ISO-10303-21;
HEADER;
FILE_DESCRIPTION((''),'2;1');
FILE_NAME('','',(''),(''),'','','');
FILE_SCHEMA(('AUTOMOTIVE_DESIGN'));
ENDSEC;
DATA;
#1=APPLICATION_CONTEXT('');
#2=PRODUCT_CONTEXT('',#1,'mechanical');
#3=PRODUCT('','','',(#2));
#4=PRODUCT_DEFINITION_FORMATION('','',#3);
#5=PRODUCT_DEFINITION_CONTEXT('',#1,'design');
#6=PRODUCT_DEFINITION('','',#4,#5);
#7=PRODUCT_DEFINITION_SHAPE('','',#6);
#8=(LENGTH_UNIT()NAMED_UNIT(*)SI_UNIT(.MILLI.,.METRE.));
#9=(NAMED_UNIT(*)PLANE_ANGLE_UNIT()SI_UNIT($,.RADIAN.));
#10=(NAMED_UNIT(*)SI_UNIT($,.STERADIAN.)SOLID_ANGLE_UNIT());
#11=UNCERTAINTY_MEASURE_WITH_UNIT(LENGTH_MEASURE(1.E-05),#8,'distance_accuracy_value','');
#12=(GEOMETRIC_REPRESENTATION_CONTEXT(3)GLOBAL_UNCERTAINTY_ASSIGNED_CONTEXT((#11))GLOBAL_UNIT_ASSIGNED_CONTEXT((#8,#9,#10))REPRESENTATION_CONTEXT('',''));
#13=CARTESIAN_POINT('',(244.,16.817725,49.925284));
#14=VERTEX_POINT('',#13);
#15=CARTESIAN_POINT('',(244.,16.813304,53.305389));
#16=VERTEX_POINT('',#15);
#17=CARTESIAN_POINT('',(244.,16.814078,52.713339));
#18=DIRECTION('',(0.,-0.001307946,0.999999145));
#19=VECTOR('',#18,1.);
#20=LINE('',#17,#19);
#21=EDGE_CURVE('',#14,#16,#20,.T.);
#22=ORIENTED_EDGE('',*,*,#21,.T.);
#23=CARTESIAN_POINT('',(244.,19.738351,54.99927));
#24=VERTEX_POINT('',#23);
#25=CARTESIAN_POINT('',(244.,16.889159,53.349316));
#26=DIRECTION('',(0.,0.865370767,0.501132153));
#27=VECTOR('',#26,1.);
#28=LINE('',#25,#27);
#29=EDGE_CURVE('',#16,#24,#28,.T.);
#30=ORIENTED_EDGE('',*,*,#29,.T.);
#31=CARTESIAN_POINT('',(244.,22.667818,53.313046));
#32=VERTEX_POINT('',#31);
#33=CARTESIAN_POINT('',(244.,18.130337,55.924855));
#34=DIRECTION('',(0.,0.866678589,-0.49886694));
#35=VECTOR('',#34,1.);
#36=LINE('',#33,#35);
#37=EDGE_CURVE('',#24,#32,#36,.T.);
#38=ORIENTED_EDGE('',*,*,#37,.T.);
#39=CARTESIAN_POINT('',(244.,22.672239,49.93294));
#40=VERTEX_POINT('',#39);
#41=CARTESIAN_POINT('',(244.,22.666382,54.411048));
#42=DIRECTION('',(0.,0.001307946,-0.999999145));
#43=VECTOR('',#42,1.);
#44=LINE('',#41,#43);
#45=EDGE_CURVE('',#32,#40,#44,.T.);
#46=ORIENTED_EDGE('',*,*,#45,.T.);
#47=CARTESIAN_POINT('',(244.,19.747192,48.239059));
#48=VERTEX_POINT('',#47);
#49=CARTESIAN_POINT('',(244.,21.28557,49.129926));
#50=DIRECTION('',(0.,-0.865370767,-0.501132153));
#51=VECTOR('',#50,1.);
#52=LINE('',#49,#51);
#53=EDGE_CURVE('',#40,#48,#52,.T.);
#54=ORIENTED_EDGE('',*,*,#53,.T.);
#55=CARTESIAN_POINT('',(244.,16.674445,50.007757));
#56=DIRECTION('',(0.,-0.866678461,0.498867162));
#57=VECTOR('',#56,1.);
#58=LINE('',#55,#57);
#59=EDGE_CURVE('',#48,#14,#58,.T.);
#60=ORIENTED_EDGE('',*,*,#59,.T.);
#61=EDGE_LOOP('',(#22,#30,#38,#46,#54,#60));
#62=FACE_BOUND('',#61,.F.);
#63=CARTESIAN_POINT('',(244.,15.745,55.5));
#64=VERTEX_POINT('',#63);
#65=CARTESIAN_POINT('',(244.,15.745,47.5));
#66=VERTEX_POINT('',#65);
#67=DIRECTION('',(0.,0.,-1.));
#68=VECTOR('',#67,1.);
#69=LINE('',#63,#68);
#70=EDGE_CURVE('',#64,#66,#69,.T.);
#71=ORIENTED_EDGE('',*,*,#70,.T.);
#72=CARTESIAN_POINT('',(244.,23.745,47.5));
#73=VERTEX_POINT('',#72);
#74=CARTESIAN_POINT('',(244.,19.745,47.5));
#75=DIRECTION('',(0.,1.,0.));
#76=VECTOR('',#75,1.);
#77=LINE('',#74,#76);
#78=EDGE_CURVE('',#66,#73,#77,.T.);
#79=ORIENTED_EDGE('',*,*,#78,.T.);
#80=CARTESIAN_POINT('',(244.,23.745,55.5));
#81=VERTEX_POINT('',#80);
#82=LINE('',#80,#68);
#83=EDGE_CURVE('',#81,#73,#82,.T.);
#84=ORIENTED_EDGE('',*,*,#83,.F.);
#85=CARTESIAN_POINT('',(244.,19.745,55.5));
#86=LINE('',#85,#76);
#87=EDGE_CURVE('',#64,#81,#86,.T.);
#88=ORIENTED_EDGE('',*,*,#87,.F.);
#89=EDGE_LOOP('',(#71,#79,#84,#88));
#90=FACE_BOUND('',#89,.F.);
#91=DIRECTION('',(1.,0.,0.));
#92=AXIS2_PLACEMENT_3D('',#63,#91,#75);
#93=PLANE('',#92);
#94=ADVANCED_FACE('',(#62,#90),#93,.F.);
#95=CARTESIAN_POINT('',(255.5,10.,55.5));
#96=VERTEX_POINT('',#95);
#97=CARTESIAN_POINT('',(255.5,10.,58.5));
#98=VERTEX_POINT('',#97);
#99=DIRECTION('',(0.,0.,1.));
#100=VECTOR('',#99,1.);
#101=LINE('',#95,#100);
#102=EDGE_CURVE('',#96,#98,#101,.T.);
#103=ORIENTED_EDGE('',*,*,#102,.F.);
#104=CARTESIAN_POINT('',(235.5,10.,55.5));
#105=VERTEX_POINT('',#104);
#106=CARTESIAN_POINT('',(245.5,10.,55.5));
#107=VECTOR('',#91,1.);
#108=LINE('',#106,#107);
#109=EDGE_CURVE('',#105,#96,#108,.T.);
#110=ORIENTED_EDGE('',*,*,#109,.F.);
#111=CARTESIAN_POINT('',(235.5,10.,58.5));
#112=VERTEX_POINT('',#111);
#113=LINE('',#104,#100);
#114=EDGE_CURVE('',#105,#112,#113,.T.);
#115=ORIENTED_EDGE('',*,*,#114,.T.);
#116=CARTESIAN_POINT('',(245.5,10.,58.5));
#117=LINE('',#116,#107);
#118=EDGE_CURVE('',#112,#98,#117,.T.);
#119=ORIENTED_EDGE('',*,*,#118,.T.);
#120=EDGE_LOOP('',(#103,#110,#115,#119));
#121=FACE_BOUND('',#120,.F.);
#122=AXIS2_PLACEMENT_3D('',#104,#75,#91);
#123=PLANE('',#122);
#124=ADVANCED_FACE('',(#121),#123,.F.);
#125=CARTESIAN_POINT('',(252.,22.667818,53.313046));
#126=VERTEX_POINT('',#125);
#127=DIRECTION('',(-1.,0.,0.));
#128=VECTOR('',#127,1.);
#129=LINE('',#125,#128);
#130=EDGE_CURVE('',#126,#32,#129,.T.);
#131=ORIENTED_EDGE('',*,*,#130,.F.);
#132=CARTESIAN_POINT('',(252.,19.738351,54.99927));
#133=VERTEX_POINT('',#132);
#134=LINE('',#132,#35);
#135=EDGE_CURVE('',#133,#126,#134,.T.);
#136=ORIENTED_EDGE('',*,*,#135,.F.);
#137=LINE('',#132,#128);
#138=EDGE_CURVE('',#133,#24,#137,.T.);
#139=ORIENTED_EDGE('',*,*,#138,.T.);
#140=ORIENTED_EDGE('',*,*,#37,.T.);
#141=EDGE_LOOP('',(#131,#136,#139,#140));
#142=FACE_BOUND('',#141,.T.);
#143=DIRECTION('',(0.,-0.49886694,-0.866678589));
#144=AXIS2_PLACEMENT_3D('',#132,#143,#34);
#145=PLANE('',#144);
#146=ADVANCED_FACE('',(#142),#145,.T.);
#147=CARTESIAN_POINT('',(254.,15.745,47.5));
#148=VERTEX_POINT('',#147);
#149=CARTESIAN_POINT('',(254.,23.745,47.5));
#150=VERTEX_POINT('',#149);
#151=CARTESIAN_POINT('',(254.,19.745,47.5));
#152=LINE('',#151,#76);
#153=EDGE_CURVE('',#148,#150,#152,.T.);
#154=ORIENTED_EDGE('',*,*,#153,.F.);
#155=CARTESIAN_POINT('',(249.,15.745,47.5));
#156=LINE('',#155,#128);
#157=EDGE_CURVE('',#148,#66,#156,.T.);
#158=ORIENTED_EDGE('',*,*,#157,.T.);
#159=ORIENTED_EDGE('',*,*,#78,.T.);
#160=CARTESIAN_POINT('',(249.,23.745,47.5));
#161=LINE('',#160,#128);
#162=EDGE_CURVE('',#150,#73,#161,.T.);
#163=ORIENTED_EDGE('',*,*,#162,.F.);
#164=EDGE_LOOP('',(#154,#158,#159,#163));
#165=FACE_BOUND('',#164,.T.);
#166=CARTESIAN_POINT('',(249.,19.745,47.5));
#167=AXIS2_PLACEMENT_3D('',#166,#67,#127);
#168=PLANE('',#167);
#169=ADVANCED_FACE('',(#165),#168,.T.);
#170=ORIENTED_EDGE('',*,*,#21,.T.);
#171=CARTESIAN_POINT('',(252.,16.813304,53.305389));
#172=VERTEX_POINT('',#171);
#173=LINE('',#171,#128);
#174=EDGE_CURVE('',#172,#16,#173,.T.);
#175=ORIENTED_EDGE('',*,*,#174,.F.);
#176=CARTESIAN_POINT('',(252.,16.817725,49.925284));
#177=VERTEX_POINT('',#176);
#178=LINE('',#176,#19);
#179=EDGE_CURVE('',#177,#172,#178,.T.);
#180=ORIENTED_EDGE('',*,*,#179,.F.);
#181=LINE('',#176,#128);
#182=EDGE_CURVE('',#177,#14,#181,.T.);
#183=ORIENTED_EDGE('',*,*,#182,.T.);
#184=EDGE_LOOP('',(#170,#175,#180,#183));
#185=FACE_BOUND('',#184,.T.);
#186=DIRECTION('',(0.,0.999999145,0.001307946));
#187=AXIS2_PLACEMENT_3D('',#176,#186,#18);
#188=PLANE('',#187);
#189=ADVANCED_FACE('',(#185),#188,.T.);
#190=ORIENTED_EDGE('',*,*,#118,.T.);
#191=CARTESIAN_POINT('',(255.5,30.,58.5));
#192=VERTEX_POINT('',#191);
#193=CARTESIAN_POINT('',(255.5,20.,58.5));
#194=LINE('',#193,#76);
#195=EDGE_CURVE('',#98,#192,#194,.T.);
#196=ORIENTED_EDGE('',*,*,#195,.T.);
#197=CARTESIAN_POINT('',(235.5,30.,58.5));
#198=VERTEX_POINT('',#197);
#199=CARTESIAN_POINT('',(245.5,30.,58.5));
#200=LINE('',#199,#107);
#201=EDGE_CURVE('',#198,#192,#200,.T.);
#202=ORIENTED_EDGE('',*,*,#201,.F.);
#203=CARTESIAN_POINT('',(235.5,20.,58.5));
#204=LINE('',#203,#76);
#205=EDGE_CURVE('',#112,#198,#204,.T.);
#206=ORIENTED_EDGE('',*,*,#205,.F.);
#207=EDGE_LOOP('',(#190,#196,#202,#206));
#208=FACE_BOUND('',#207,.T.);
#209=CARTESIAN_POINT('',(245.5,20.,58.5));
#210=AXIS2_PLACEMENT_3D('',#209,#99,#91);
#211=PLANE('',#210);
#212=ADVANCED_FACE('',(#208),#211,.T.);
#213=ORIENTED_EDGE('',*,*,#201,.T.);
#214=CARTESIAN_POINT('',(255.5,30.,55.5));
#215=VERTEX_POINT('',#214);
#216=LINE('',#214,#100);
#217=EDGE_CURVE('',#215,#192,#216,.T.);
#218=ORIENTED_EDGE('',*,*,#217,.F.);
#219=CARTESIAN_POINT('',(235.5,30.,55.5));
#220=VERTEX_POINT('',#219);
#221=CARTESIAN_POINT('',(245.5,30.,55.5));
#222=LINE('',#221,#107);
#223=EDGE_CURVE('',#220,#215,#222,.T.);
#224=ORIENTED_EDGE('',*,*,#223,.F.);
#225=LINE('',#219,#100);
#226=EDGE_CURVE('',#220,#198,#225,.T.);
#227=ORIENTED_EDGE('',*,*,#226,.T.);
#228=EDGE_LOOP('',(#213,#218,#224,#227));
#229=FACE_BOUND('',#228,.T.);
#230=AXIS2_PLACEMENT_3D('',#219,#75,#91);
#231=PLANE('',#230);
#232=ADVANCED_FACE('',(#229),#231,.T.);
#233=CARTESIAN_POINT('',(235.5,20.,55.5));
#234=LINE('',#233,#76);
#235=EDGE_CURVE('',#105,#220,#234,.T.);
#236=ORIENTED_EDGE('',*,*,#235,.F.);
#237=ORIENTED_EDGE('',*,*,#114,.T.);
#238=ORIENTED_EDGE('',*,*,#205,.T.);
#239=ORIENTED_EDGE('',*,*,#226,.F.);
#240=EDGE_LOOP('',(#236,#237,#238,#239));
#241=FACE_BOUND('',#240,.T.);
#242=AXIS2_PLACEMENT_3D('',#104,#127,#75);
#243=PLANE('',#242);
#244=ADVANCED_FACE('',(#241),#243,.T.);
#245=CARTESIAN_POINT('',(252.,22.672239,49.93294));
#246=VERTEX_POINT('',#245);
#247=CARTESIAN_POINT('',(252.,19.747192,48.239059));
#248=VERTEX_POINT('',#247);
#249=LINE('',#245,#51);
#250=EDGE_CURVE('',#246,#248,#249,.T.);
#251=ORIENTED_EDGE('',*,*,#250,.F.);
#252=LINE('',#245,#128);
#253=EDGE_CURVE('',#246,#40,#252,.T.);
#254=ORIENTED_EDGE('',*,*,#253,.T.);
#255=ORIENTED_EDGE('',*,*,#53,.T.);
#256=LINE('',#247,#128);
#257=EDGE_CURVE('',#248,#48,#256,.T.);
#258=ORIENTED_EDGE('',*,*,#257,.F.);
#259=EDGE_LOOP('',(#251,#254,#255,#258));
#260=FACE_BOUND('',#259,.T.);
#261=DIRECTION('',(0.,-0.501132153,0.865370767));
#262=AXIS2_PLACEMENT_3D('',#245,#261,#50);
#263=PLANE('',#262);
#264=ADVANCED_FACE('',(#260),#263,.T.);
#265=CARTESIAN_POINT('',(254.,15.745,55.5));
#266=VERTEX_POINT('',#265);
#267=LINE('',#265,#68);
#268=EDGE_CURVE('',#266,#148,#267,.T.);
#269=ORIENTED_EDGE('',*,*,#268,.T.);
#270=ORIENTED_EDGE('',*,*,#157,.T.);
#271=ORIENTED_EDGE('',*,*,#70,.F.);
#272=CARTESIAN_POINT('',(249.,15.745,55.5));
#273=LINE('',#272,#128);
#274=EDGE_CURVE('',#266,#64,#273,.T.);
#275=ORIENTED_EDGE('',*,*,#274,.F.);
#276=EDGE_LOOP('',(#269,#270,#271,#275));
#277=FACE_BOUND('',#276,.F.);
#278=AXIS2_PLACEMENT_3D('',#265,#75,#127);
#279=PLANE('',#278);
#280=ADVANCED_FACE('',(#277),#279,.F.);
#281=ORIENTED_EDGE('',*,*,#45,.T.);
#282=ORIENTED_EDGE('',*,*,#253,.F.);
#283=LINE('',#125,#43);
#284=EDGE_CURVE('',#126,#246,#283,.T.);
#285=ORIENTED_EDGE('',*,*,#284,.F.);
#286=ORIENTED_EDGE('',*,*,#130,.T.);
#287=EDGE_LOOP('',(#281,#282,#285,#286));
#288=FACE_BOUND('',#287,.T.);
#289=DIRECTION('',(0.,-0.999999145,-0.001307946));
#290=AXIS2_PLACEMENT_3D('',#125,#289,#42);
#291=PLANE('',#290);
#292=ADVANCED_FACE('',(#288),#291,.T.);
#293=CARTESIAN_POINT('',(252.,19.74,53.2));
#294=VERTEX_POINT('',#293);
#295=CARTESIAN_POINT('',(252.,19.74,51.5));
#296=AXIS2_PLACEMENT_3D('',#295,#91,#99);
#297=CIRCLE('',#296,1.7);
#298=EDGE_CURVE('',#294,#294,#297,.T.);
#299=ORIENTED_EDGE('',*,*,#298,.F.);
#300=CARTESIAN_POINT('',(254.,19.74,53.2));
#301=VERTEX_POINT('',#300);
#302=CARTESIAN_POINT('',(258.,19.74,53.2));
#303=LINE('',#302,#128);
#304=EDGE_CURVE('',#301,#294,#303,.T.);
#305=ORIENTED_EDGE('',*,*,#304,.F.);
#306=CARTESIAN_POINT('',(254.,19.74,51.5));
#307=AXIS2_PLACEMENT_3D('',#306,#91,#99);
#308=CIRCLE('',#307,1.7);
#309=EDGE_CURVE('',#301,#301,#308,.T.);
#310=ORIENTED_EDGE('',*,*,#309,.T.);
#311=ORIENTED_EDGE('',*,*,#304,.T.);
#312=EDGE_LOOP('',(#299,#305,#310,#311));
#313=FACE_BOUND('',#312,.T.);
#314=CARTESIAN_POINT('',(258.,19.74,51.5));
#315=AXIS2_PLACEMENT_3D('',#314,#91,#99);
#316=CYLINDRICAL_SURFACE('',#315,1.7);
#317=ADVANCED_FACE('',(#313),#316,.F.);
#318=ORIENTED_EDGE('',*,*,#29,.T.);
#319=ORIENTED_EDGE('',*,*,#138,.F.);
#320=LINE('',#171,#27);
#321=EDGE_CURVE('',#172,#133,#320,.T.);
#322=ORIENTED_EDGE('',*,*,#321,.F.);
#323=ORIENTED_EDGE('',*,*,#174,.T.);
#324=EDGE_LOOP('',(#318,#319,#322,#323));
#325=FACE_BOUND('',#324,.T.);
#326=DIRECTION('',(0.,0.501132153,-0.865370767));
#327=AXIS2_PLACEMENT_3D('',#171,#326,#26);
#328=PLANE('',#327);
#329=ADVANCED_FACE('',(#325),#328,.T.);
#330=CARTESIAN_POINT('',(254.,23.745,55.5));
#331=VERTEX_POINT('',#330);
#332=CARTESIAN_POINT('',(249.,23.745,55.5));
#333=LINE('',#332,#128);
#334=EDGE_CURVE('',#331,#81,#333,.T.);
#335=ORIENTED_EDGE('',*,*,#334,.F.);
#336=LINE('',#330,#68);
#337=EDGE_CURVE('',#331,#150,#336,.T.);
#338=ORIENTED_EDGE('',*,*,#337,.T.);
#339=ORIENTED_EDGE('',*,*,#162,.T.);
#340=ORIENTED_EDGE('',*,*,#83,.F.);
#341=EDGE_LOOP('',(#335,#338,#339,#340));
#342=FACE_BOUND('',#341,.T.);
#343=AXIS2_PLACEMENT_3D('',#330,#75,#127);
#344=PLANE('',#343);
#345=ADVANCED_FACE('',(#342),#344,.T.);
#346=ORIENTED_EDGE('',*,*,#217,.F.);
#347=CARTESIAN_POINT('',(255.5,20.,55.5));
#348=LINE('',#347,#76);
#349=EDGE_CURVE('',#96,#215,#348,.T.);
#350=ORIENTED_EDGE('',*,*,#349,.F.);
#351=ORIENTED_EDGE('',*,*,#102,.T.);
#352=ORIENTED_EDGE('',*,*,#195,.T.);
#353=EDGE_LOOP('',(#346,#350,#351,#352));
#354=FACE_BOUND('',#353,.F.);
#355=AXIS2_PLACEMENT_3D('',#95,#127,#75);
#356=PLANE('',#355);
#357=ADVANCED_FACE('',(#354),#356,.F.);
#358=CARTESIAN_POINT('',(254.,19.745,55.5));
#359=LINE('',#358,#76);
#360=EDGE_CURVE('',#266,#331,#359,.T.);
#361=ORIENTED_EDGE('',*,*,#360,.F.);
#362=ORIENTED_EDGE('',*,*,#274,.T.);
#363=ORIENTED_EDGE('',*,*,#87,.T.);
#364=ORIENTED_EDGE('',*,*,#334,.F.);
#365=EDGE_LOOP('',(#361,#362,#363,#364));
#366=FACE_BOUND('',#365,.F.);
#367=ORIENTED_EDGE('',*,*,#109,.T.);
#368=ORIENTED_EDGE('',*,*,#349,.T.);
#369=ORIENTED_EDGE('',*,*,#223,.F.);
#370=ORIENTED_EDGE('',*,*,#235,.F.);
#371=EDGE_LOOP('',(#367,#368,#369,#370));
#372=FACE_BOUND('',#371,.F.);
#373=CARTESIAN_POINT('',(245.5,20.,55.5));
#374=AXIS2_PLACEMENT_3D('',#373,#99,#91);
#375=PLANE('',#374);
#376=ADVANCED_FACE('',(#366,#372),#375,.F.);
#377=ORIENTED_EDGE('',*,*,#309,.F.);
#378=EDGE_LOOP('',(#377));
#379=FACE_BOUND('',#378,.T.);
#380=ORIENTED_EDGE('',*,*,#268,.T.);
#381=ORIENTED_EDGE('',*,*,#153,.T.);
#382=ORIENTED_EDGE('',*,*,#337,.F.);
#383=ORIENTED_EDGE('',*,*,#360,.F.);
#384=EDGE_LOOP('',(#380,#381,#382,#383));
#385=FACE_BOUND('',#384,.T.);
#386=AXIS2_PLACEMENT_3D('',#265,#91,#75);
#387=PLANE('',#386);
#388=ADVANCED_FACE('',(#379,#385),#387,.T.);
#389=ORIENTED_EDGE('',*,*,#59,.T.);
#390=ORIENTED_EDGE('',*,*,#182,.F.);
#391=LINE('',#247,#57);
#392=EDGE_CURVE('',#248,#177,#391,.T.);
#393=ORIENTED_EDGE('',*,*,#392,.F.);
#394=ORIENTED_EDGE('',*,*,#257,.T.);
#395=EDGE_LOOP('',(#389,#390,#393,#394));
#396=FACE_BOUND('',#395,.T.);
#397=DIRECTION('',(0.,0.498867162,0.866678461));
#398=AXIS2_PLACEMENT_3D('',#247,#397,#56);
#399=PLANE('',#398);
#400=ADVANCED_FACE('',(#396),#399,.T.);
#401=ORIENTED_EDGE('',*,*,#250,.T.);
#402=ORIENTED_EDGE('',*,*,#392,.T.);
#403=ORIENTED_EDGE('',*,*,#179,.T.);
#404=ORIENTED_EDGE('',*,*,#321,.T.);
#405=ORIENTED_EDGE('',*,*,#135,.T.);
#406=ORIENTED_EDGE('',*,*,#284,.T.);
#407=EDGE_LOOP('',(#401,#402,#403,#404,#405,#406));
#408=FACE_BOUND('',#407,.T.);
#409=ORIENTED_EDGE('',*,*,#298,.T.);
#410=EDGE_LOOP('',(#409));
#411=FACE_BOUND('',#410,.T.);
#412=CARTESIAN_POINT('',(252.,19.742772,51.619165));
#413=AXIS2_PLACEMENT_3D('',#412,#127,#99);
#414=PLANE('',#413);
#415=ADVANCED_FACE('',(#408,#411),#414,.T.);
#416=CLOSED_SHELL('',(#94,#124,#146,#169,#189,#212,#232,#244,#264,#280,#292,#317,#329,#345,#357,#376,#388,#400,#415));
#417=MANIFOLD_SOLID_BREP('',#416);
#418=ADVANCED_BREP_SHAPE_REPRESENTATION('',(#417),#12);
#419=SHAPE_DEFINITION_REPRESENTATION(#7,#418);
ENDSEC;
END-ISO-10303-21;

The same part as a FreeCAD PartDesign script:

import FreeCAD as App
import Part
import Sketcher

V = App.Vector


def add_polygon(sketch, points):
    """Adds a closed chain of lines whose ends are joined by coincident constraints."""
    first, n = sketch.GeometryCount, len(points)
    for a, b in zip(points, points[1:] + points[:1]):
        sketch.addGeometry(Part.LineSegment(App.Vector(*a, 0), App.Vector(*b, 0)), False)
    for i in range(n):
        sketch.addConstraint(Sketcher.Constraint("Coincident", first + i, 2, first + (i + 1) % n, 1))

doc = App.newDocument("Part")
body = doc.addObject("PartDesign::Body", "Body")

sketch1 = body.newObject("Sketcher::SketchObject", "Sketch")
sketch1.AttachmentSupport = (doc.getObject("YZ_Plane"), [""])
sketch1.MapMode = "FlatFace"
sketch1.AttachmentOffset = App.Placement(V(0, 0, 140), App.Rotation())
sketch1.addGeometry(Part.Circle(V(9.7, 51.5, 0), V(0, 0, 1), 1.7), False)
sketch1.addConstraint([
    Sketcher.Constraint("Diameter", 0, 3.4),
    Sketcher.Constraint("DistanceY", -1, 1, 0, 3, 51.5),
    Sketcher.Constraint("DistanceX", -1, 1, 0, 3, 9.74),
])
pad1 = body.newObject("PartDesign::Pad", "Pad")
pad1.Profile = sketch1
pad1.Length = 20
body2 = doc.addObject("PartDesign::Body", "Body001")

sketch2 = body2.newObject("Sketcher::SketchObject", "Sketch001")
sketch2.AttachmentSupport = (doc.getObject("XY_Plane001"), [""])
sketch2.MapMode = "FlatFace"
sketch2.AttachmentOffset = App.Placement(V(0, 0, 75), App.Rotation())
add_polygon(sketch2, [(-29.7, 6.8), (-28, 9.7), (-29.7, 12.7), (-33.1, 12.7), (-34.8, 9.7), (-33.1, 6.8)])
sketch2.addConstraint([
    Sketcher.Constraint("Parallel", 0, 3),
    Sketcher.Constraint("Parallel", 1, 4),
    Sketcher.Constraint("Parallel", 2, 5),
    Sketcher.Constraint("Equal", 0, 1),
    Sketcher.Constraint("Equal", 1, 2),
    Sketcher.Constraint("Equal", 2, 3),
    Sketcher.Constraint("Distance", 0, 3.380108),
    Sketcher.Constraint("DistanceX", 0, 2, -1, 1, 28.00073),
    Sketcher.Constraint("DistanceY", -1, 1, 0, 2, 9.738351),
    Sketcher.Constraint("DistanceX", 2, 2, -1, 1, 33.06706),
    Sketcher.Constraint("DistanceY", -1, 1, 2, 2, 12.672239),
    Sketcher.Constraint("DistanceX", 3, 2, -1, 1, 34.760941),
])
pad2 = body2.newObject("PartDesign::Pad", "Pad001")
pad2.Profile = sketch2
pad2.Length = 9
body3 = doc.addObject("PartDesign::Body", "Body002")
doc.recompute()

body2.Placement = App.Placement(V(71, 0, 0), App.Rotation(V(0, 1, 0), 90))
boolean = body3.newObject("PartDesign::Boolean", "Boolean")
boolean.Type = "Fuse"
boolean.addObjects([body2])
body4 = doc.addObject("PartDesign::Body", "Body003")

sketch3 = body4.newObject("Sketcher::SketchObject", "Sketch002")
sketch3.AttachmentSupport = (doc.getObject("XY_Plane003"), [""])
sketch3.MapMode = "FlatFace"
sketch3.AttachmentOffset = App.Placement(V(0, 0, 27.5), App.Rotation())
add_polygon(sketch3, [(144, 14), (144, 6), (154, 6), (154, 14)])
sketch3.addConstraint([
    Sketcher.Constraint("Vertical", 0),
    Sketcher.Constraint("Horizontal", 1),
    Sketcher.Constraint("Vertical", 2),
    Sketcher.Constraint("Horizontal", 3),
    Sketcher.Constraint("DistanceX", 1, 1, 1, 2, 10.0),
    Sketcher.Constraint("DistanceY", 0, 2, 0, 1, 8.0),
    Sketcher.Constraint("DistanceX", -1, 1, 0, 2, 144.0),
    Sketcher.Constraint("DistanceY", -1, 1, 0, 2, 5.745),
])
pad3 = body4.newObject("PartDesign::Pad", "Pad002")
pad3.Profile = sketch3
pad3.Length = 8
doc.recompute()

boolean2 = body4.newObject("PartDesign::Boolean", "Boolean001")
boolean2.Type = "Cut"
boolean2.addObjects([body3])
body5 = doc.addObject("PartDesign::Body", "Body004")
doc.recompute()

body4.Placement = App.Placement(V(0, 0, 20), App.Rotation(V(0, 0, 1), 0))
boolean3 = body5.newObject("PartDesign::Boolean", "Boolean002")
boolean3.Type = "Fuse"
boolean3.addObjects([body4])
doc.recompute()

boolean4 = body5.newObject("PartDesign::Boolean", "Boolean003")
boolean4.Type = "Cut"
boolean4.addObjects([body])
body6 = doc.addObject("PartDesign::Body", "Body005")
doc.recompute()

body5.Placement = App.Placement(V(398, 10, 103), App.Rotation(V(0, 1, 0), 180))
boolean5 = body6.newObject("PartDesign::Boolean", "Boolean004")
boolean5.Type = "Fuse"
boolean5.addObjects([body5])
body7 = doc.addObject("PartDesign::Body", "Body006")

sketch4 = body7.newObject("Sketcher::SketchObject", "Sketch003")
sketch4.AttachmentSupport = (doc.getObject("XY_Plane006"), [""])
sketch4.MapMode = "FlatFace"
sketch4.AttachmentOffset = App.Placement(V(0, 0, 55.5), App.Rotation())
add_polygon(sketch4, [(236, 30), (236, 10), (256, 10), (256, 30)])
sketch4.addConstraint([
    Sketcher.Constraint("Vertical", 0),
    Sketcher.Constraint("Horizontal", 1),
    Sketcher.Constraint("Vertical", 2),
    Sketcher.Constraint("Horizontal", 3),
    Sketcher.Constraint("Equal", 3, 0),
    Sketcher.Constraint("DistanceX", 1, 1, 1, 2, 20.0),
    Sketcher.Constraint("DistanceY", -1, 1, 0, 2, 10.0),
    Sketcher.Constraint("DistanceX", -1, 1, 0, 2, 235.5),
])
pad4 = body7.newObject("PartDesign::Pad", "Pad003")
pad4.Profile = sketch4
pad4.Length = 3
doc.recompute()

boolean6 = body7.newObject("PartDesign::Boolean", "Boolean005")
boolean6.Type = "Fuse"
boolean6.addObjects([body6])

doc.recompute()
